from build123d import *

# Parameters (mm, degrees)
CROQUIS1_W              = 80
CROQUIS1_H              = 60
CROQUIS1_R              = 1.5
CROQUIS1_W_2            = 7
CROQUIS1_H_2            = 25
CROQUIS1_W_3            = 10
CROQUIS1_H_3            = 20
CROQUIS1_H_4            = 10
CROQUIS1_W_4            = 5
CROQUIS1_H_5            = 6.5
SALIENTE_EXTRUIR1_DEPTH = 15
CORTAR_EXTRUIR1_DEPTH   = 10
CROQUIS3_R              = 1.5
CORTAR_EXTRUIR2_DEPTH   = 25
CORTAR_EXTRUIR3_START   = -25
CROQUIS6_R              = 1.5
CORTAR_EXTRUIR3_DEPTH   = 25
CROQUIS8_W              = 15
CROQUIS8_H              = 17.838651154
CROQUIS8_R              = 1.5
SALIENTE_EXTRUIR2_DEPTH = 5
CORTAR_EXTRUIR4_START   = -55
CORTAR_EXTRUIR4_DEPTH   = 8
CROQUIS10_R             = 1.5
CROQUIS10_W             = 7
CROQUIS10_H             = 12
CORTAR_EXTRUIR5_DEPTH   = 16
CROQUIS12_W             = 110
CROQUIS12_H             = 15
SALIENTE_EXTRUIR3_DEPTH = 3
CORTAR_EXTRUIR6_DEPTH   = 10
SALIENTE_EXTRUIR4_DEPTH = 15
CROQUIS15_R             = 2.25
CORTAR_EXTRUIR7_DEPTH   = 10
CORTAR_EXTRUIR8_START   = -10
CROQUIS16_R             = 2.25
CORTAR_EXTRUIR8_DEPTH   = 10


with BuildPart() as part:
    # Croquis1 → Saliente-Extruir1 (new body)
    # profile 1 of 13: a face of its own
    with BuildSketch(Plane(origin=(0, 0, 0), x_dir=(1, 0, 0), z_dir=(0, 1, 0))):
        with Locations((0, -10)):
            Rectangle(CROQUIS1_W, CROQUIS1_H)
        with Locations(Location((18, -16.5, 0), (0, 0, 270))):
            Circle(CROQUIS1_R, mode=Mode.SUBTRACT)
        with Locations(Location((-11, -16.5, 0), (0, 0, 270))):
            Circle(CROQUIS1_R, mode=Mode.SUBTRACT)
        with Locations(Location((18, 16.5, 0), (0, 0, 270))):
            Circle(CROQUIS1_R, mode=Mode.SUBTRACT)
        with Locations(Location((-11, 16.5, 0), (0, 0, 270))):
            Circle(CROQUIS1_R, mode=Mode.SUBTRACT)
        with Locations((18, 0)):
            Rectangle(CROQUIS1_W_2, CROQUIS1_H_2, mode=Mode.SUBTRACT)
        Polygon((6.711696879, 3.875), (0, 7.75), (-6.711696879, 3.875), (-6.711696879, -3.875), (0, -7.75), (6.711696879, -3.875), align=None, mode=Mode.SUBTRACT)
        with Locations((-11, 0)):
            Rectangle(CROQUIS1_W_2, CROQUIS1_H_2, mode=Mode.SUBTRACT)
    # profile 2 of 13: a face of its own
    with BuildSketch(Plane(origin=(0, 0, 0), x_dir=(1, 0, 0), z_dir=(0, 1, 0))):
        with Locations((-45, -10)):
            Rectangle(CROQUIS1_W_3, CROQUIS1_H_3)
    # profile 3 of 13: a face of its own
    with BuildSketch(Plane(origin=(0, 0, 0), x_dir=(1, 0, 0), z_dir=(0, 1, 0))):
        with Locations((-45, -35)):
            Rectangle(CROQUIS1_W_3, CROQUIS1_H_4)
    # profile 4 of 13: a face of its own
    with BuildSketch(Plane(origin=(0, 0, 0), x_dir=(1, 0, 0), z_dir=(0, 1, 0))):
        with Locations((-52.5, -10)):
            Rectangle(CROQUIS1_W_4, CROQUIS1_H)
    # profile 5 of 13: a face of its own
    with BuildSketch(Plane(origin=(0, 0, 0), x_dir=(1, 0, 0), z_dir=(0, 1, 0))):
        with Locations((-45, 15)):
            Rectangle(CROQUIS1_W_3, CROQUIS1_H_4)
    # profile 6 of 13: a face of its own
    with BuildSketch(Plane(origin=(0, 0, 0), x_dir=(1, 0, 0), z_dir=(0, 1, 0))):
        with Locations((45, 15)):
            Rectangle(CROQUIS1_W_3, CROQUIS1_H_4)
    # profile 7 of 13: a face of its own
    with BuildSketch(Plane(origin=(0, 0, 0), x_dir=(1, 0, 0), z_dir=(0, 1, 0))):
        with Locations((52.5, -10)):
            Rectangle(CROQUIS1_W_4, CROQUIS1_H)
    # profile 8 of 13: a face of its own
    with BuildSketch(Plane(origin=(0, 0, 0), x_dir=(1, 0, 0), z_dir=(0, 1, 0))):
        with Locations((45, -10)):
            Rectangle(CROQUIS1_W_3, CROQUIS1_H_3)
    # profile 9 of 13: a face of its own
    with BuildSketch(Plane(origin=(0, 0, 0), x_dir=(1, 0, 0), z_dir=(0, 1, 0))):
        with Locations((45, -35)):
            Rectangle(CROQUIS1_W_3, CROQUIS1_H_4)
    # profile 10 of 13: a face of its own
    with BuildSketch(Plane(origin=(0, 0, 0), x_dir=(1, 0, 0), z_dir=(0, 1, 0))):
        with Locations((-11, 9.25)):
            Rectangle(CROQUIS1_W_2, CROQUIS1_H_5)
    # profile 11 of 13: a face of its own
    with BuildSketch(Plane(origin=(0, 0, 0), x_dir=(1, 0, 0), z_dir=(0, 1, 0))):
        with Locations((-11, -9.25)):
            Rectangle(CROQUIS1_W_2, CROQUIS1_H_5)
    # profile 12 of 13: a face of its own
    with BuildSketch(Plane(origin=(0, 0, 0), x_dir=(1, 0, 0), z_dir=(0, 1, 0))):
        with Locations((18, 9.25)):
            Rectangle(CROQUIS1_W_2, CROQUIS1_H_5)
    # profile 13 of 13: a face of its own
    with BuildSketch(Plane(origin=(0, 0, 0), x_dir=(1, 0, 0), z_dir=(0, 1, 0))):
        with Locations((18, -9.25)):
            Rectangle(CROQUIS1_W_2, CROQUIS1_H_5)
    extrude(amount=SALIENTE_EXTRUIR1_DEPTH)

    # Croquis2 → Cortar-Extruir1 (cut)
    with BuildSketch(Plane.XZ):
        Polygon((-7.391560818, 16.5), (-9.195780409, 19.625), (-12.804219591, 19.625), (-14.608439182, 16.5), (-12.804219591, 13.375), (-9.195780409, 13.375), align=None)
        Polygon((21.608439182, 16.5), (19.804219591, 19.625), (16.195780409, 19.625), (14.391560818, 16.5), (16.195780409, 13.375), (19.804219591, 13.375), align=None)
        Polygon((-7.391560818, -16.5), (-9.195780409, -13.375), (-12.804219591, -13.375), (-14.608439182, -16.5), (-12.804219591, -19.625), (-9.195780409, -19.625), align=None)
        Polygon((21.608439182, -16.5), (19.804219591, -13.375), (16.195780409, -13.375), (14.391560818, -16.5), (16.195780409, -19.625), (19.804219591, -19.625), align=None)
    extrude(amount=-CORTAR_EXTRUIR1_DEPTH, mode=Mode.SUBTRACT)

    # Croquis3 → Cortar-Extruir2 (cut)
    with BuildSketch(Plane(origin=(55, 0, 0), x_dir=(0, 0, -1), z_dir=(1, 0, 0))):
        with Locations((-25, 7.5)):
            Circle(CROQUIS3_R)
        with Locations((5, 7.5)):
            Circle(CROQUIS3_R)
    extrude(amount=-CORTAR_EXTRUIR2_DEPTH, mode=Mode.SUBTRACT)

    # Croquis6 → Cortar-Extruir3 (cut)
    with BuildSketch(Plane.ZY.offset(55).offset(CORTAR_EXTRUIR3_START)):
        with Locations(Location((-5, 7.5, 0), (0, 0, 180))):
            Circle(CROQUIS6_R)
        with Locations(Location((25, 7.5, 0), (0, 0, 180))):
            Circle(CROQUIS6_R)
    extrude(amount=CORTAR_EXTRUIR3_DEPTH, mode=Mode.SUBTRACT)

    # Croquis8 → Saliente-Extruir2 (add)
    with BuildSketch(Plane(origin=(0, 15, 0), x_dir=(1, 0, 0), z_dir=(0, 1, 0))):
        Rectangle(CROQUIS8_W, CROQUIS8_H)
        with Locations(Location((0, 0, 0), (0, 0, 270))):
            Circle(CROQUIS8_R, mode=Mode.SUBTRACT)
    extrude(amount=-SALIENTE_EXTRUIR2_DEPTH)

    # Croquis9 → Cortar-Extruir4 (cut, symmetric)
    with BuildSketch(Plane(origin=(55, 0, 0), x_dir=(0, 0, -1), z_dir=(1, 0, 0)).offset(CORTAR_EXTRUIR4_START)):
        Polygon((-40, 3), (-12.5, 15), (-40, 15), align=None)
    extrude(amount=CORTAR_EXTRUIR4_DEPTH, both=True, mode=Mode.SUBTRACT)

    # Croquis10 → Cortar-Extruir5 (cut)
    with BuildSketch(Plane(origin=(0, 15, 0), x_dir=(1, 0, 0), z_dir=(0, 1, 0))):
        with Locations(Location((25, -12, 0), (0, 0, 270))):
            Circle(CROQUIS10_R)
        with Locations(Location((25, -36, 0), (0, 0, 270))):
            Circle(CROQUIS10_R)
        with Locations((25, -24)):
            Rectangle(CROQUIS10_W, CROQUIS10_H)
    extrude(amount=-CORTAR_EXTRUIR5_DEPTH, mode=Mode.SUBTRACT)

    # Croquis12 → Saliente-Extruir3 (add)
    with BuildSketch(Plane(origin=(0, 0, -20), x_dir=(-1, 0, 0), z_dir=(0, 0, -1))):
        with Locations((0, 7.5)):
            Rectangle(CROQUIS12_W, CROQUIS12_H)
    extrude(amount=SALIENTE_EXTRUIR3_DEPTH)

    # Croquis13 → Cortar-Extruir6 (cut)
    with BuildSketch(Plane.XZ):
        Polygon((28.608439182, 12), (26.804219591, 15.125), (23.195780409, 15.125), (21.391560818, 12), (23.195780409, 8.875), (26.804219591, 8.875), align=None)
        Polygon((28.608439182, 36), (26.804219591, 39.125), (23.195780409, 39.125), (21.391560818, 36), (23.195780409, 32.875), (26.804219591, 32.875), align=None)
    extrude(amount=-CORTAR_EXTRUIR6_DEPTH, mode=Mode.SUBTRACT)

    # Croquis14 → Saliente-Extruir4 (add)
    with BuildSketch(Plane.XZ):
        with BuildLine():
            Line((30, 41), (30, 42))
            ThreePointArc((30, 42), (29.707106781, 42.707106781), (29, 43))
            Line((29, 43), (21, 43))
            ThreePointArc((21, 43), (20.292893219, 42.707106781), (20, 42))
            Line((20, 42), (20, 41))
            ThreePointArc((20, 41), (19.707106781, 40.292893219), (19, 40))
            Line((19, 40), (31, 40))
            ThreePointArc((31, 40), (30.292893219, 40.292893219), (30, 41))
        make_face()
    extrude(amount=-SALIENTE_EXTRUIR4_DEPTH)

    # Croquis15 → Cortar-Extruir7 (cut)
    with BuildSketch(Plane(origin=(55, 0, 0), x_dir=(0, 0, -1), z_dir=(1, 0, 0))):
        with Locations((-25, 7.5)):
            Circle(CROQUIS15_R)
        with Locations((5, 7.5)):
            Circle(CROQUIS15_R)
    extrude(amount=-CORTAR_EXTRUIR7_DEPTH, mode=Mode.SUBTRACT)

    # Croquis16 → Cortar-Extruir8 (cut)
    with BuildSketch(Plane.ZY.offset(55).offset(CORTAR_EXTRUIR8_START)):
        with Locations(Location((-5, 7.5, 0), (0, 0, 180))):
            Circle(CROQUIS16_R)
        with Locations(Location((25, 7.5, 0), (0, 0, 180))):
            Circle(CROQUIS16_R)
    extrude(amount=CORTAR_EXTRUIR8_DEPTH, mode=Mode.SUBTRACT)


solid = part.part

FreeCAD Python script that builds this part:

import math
import FreeCAD as App
import Part
import Sketcher

V = App.Vector
Q = App.Units.Quantity

doc = App.newDocument("Part")
body = doc.addObject("PartDesign::Body", "Body")

sketch1 = body.newObject("Sketcher::SketchObject", "Sketch")
sketch1.AttachmentSupport = (doc.getObject("XZ_Plane"), [""])
sketch1.MapMode = "FlatFace"
sketch1.addGeometry(Part.LineSegment(V(55, 40, 0), V(55, -20, 0)), False)
sketch1.addGeometry(Part.LineSegment(V(55, -20, 0), V(-55, -20, 0)), False)
sketch1.addGeometry(Part.LineSegment(V(-55, -20, 0), V(-55, 40, 0)), False)
sketch1.addGeometry(Part.LineSegment(V(-55, 40, 0), V(55, 40, 0)), False)
sketch1.addGeometry(Part.LineSegment(V(-40, 20, 0), V(-40, 30, 0)), False)
sketch1.addGeometry(Part.LineSegment(V(-40, 30, 0), V(-50, 30, 0)), False)
sketch1.addGeometry(Part.LineSegment(V(-50, 30, 0), V(-50, 20, 0)), False)
sketch1.addGeometry(Part.LineSegment(V(-50, 20, 0), V(-40, 20, 0)), False)
sketch1.addGeometry(Part.LineSegment(V(-40, -10, 0), V(-40, 0, 0)), False)
sketch1.addGeometry(Part.LineSegment(V(-40, 0, 0), V(-50, 0, 0)), False)
sketch1.addGeometry(Part.LineSegment(V(-50, 0, 0), V(-50, -10, 0)), False)
sketch1.addGeometry(Part.LineSegment(V(-50, -10, 0), V(-40, -10, 0)), False)
sketch1.addGeometry(Part.LineSegment(V(40, 30, 0), V(40, 20, 0)), False)
sketch1.addGeometry(Part.LineSegment(V(40, 20, 0), V(50, 20, 0)), False)
sketch1.addGeometry(Part.LineSegment(V(50, 20, 0), V(50, 30, 0)), False)
sketch1.addGeometry(Part.LineSegment(V(50, 30, 0), V(40, 30, 0)), False)
sketch1.addGeometry(Part.LineSegment(V(40, 0, 0), V(40, -10, 0)), False)
sketch1.addGeometry(Part.LineSegment(V(40, -10, 0), V(50, -10, 0)), False)
sketch1.addGeometry(Part.LineSegment(V(50, -10, 0), V(50, 0, 0)), False)
sketch1.addGeometry(Part.LineSegment(V(50, 0, 0), V(40, 0, 0)), False)
sketch1.addGeometry(Part.Circle(V(-11, 16.5, 0), V(0, 0, 1), 1.5), False)
sketch1.addGeometry(Part.Circle(V(18, 16.5, 0), V(0, 0, 1), 1.5), False)
sketch1.addGeometry(Part.LineSegment(V(-7.5, -6, 0), V(-7.5, 6, 0)), False)
sketch1.addGeometry(Part.LineSegment(V(-7.5, 6, 0), V(-14.5, 6, 0)), False)
sketch1.addGeometry(Part.LineSegment(V(-14.5, 6, 0), V(-14.5, -6, 0)), False)
sketch1.addGeometry(Part.LineSegment(V(-14.5, -6, 0), V(-7.5, -6, 0)), False)
sketch1.addGeometry(Part.LineSegment(V(0, -7.8, 0), V(6.7, -3.9, 0)), False)
sketch1.addGeometry(Part.LineSegment(V(6.7, -3.9, 0), V(6.7, 3.9, 0)), False)
sketch1.addGeometry(Part.LineSegment(V(6.7, 3.9, 0), V(0, 7.8, 0)), False)
sketch1.addGeometry(Part.LineSegment(V(0, 7.8, 0), V(-6.7, 3.9, 0)), False)
sketch1.addGeometry(Part.LineSegment(V(-6.7, 3.9, 0), V(-6.7, -3.9, 0)), False)
sketch1.addGeometry(Part.LineSegment(V(-6.7, -3.9, 0), V(0, -7.8, 0)), False)
sketch1.addGeometry(Part.Circle(V(-11, -16.5, 0), V(0, 0, 1), 1.5), False)
sketch1.addGeometry(Part.LineSegment(V(14.5, 6, 0), V(14.5, -6, 0)), False)
sketch1.addGeometry(Part.LineSegment(V(14.5, -6, 0), V(21.5, -6, 0)), False)
sketch1.addGeometry(Part.LineSegment(V(21.5, -6, 0), V(21.5, 6, 0)), False)
sketch1.addGeometry(Part.LineSegment(V(21.5, 6, 0), V(14.5, 6, 0)), False)
sketch1.addGeometry(Part.Circle(V(18, -16.5, 0), V(0, 0, 1), 1.5), False)
sketch1.addConstraint(Sketcher.Constraint("Coincident", 0, 2, 1, 1))
sketch1.addConstraint(Sketcher.Constraint("Coincident", 1, 2, 2, 1))
sketch1.addConstraint(Sketcher.Constraint("Coincident", 2, 2, 3, 1))
sketch1.addConstraint(Sketcher.Constraint("Coincident", 3, 2, 0, 1))
sketch1.addConstraint(Sketcher.Constraint("Coincident", 4, 2, 5, 1))
sketch1.addConstraint(Sketcher.Constraint("Coincident", 5, 2, 6, 1))
sketch1.addConstraint(Sketcher.Constraint("Coincident", 6, 2, 7, 1))
sketch1.addConstraint(Sketcher.Constraint("Coincident", 7, 2, 4, 1))
sketch1.addConstraint(Sketcher.Constraint("Coincident", 8, 2, 9, 1))
sketch1.addConstraint(Sketcher.Constraint("Coincident", 9, 2, 10, 1))
sketch1.addConstraint(Sketcher.Constraint("Coincident", 10, 2, 11, 1))
sketch1.addConstraint(Sketcher.Constraint("Coincident", 11, 2, 8, 1))
sketch1.addConstraint(Sketcher.Constraint("Coincident", 12, 2, 13, 1))
sketch1.addConstraint(Sketcher.Constraint("Coincident", 13, 2, 14, 1))
sketch1.addConstraint(Sketcher.Constraint("Coincident", 14, 2, 15, 1))
sketch1.addConstraint(Sketcher.Constraint("Coincident", 15, 2, 12, 1))
sketch1.addConstraint(Sketcher.Constraint("Coincident", 16, 2, 17, 1))
sketch1.addConstraint(Sketcher.Constraint("Coincident", 17, 2, 18, 1))
sketch1.addConstraint(Sketcher.Constraint("Coincident", 18, 2, 19, 1))
sketch1.addConstraint(Sketcher.Constraint("Coincident", 19, 2, 16, 1))
sketch1.addConstraint(Sketcher.Constraint("Coincident", 22, 2, 23, 1))
sketch1.addConstraint(Sketcher.Constraint("Coincident", 23, 2, 24, 1))
sketch1.addConstraint(Sketcher.Constraint("Coincident", 24, 2, 25, 1))
sketch1.addConstraint(Sketcher.Constraint("Coincident", 25, 2, 22, 1))
sketch1.addConstraint(Sketcher.Constraint("Coincident", 26, 2, 27, 1))
sketch1.addConstraint(Sketcher.Constraint("Coincident", 27, 2, 28, 1))
sketch1.addConstraint(Sketcher.Constraint("Coincident", 28, 2, 29, 1))
sketch1.addConstraint(Sketcher.Constraint("Coincident", 29, 2, 30, 1))
sketch1.addConstraint(Sketcher.Constraint("Coincident", 30, 2, 31, 1))
sketch1.addConstraint(Sketcher.Constraint("Coincident", 31, 2, 26, 1))
sketch1.addConstraint(Sketcher.Constraint("Coincident", 33, 2, 34, 1))
sketch1.addConstraint(Sketcher.Constraint("Coincident", 34, 2, 35, 1))
sketch1.addConstraint(Sketcher.Constraint("Coincident", 35, 2, 36, 1))
sketch1.addConstraint(Sketcher.Constraint("Coincident", 36, 2, 33, 1))
sketch1.addConstraint(Sketcher.Constraint("Vertical", 0))
sketch1.addConstraint(Sketcher.Constraint("Horizontal", 1))
sketch1.addConstraint(Sketcher.Constraint("Vertical", 2))
sketch1.addConstraint(Sketcher.Constraint("Horizontal", 3))
sketch1.addConstraint(Sketcher.Constraint("Vertical", 4))
sketch1.addConstraint(Sketcher.Constraint("Horizontal", 5))
sketch1.addConstraint(Sketcher.Constraint("Vertical", 6))
sketch1.addConstraint(Sketcher.Constraint("Horizontal", 7))
sketch1.addConstraint(Sketcher.Constraint("Vertical", 8))
sketch1.addConstraint(Sketcher.Constraint("Horizontal", 9))
sketch1.addConstraint(Sketcher.Constraint("Vertical", 10))
sketch1.addConstraint(Sketcher.Constraint("Horizontal", 11))
sketch1.addConstraint(Sketcher.Constraint("Vertical", 12))
sketch1.addConstraint(Sketcher.Constraint("Horizontal", 13))
sketch1.addConstraint(Sketcher.Constraint("Vertical", 14))
sketch1.addConstraint(Sketcher.Constraint("Horizontal", 15))
sketch1.addConstraint(Sketcher.Constraint("Vertical", 16))
sketch1.addConstraint(Sketcher.Constraint("Horizontal", 17))
sketch1.addConstraint(Sketcher.Constraint("Vertical", 18))
sketch1.addConstraint(Sketcher.Constraint("Horizontal", 19))
sketch1.addConstraint(Sketcher.Constraint("Vertical", 22))
sketch1.addConstraint(Sketcher.Constraint("Horizontal", 23))
sketch1.addConstraint(Sketcher.Constraint("Vertical", 24))
sketch1.addConstraint(Sketcher.Constraint("Horizontal", 25))
sketch1.addConstraint(Sketcher.Constraint("Vertical", 27))
sketch1.addConstraint(Sketcher.Constraint("Vertical", 30))
sketch1.addConstraint(Sketcher.Constraint("Vertical", 33))
sketch1.addConstraint(Sketcher.Constraint("Horizontal", 34))
sketch1.addConstraint(Sketcher.Constraint("Vertical", 35))
sketch1.addConstraint(Sketcher.Constraint("Horizontal", 36))
sketch1.addConstraint(Sketcher.Constraint("Equal", 20, 21))
sketch1.addConstraint(Sketcher.Constraint("Equal", 21, 32))
sketch1.addConstraint(Sketcher.Constraint("Equal", 32, 37))
sketch1.addConstraint(Sketcher.Constraint("Symmetric", 9, 2, 18, 2, -1, 1))
sketch1.addConstraint(Sketcher.Constraint("Symmetric", 26, 2, 29, 2, -1, 1))
sketch1.addConstraint(Sketcher.Constraint("Symmetric", 28, 2, 31, 2, -1, 1))
sketch1.addConstraint(Sketcher.Constraint("Symmetric", 23, 2, 33, 2, -1, 1))
sketch1.addConstraint(Sketcher.Constraint("Symmetric", 7, 2, 12, 2, -2))
sketch1.addConstraint(Sketcher.Constraint("Symmetric", 5, 2, 14, 2, -2))
sketch1.addConstraint(Sketcher.Constraint("Symmetric", 11, 2, 16, 2, -2))
sketch1.addConstraint(Sketcher.Constraint("Symmetric", 20, 3, 32, 3, -1))
sketch1.addConstraint(Sketcher.Constraint("Symmetric", 21, 3, 37, 3, -1))
sketch1.addConstraint(Sketcher.Constraint("PointOnObject", 8, 2, -1))
sketch1.addConstraint(Sketcher.Constraint("PointOnObject", 28, 2, -2))
sketch1.addConstraint(Sketcher.Constraint("Parallel", 28, 31))
sketch1.addConstraint(Sketcher.Constraint("Horizontal", 20, 3, 21, 3))
sketch1.addConstraint(Sketcher.Constraint("Horizontal", 27, 2, 29, 2))
sketch1.addConstraint(Sketcher.Constraint("Horizontal", 25, 2, 33, 2))
sketch1.addConstraint(Sketcher.Constraint("Horizontal", 23, 2, 35, 2))
sketch1.addConstraint(Sketcher.Constraint("Vertical", 7, 2, 8, 2))
sketch1.addConstraint(Sketcher.Constraint("Vertical", 6, 2, 9, 2))
sketch1.addConstraint(Sketcher.Constraint("Equal", 25, 34))
sketch1.addConstraint(Sketcher.Constraint("Equal", 19, 4))
sketch1.addConstraint(Sketcher.Constraint("Equal", 6, 8))
sketch1.addConstraint(Sketcher.Constraint("Diameter", 20, 3.0))
sketch1.addConstraint(Sketcher.Constraint("DistanceX", 1, 2, 1, 1, 110.0))
sketch1.addConstraint(Sketcher.Constraint("DistanceX", 5, 2, 5, 1, 10.0))
sketch1.addConstraint(Sketcher.Constraint("DistanceX", 23, 2, 23, 1, 7.0))
sketch1.addConstraint(Sketcher.Constraint("DistanceY", 0, 2, 0, 1, 60.0))
sketch1.addConstraint(Sketcher.Constraint("DistanceY", 22, 1, 22, 2, 12.0))
sketch1.addConstraint(Sketcher.Constraint("Angle", 26, Q("30 deg")))
sketch1.addConstraint(Sketcher.Constraint("DistanceX", 20, 3, -1, 1, 11.0))
sketch1.addConstraint(Sketcher.Constraint("DistanceX", -1, 1, 21, 3, 18.0))
sketch1.addConstraint(Sketcher.Constraint("DistanceX", -1, 1, 0, 2, 55.0))
sketch1.addConstraint(Sketcher.Constraint("DistanceY", 0, 2, -1, 1, 20.0))
sketch1.addConstraint(Sketcher.Constraint("DistanceX", 4, 2, -1, 1, 40.0))
sketch1.addConstraint(Sketcher.Constraint("DistanceY", -1, 1, 4, 2, 30.0))
sketch1.addConstraint(Sketcher.Constraint("DistanceY", 32, 3, 20, 3, 33.0))
sketch1.addConstraint(Sketcher.Constraint("DistanceY", 27, 1, 27, 2, 7.75))
sketch1.addConstraint(Sketcher.Constraint("DistanceX", 22, 2, -1, 1, 7.5))
sketch1.addConstraint(Sketcher.Constraint("Distance", 26, 7.75))
pad1 = body.newObject("PartDesign::Pad", "Pad")
pad1.Profile = sketch1
pad1.Length = 15
pad1.Reversed = True

sketch2 = body.newObject("Sketcher::SketchObject", "Sketch001")
sketch2.AttachmentSupport = (doc.getObject("XZ_Plane"), [""])
sketch2.MapMode = "FlatFace"
sketch2.addGeometry(Part.LineSegment(V(-7.4, 16.5, 0), V(-9.2, 19.6, 0)), False)
sketch2.addGeometry(Part.LineSegment(V(-9.2, 19.6, 0), V(-12.8, 19.6, 0)), False)
sketch2.addGeometry(Part.LineSegment(V(-12.8, 19.6, 0), V(-14.6, 16.5, 0)), False)
sketch2.addGeometry(Part.LineSegment(V(-14.6, 16.5, 0), V(-12.8, 13.4, 0)), False)
sketch2.addGeometry(Part.LineSegment(V(-12.8, 13.4, 0), V(-9.2, 13.4, 0)), False)
sketch2.addGeometry(Part.LineSegment(V(-9.2, 13.4, 0), V(-7.4, 16.5, 0)), False)
sketch2.addGeometry(Part.LineSegment(V(21.6, 16.5, 0), V(19.8, 19.6, 0)), False)
sketch2.addGeometry(Part.LineSegment(V(19.8, 19.6, 0), V(16.2, 19.6, 0)), False)
sketch2.addGeometry(Part.LineSegment(V(16.2, 19.6, 0), V(14.4, 16.5, 0)), False)
sketch2.addGeometry(Part.LineSegment(V(14.4, 16.5, 0), V(16.2, 13.4, 0)), False)
sketch2.addGeometry(Part.LineSegment(V(16.2, 13.4, 0), V(19.8, 13.4, 0)), False)
sketch2.addGeometry(Part.LineSegment(V(19.8, 13.4, 0), V(21.6, 16.5, 0)), False)
sketch2.addGeometry(Part.LineSegment(V(-7.4, -16.5, 0), V(-9.2, -13.4, 0)), False)
sketch2.addGeometry(Part.LineSegment(V(-9.2, -13.4, 0), V(-12.8, -13.4, 0)), False)
sketch2.addGeometry(Part.LineSegment(V(-12.8, -13.4, 0), V(-14.6, -16.5, 0)), False)
sketch2.addGeometry(Part.LineSegment(V(-14.6, -16.5, 0), V(-12.8, -19.6, 0)), False)
sketch2.addGeometry(Part.LineSegment(V(-12.8, -19.6, 0), V(-9.2, -19.6, 0)), False)
sketch2.addGeometry(Part.LineSegment(V(-9.2, -19.6, 0), V(-7.4, -16.5, 0)), False)
sketch2.addGeometry(Part.LineSegment(V(21.6, -16.5, 0), V(19.8, -13.4, 0)), False)
sketch2.addGeometry(Part.LineSegment(V(19.8, -13.4, 0), V(16.2, -13.4, 0)), False)
sketch2.addGeometry(Part.LineSegment(V(16.2, -13.4, 0), V(14.4, -16.5, 0)), False)
sketch2.addGeometry(Part.LineSegment(V(14.4, -16.5, 0), V(16.2, -19.6, 0)), False)
sketch2.addGeometry(Part.LineSegment(V(16.2, -19.6, 0), V(19.8, -19.6, 0)), False)
sketch2.addGeometry(Part.LineSegment(V(19.8, -19.6, 0), V(21.6, -16.5, 0)), False)
sketch2.addConstraint(Sketcher.Constraint("Coincident", 0, 2, 1, 1))
sketch2.addConstraint(Sketcher.Constraint("Coincident", 1, 2, 2, 1))
sketch2.addConstraint(Sketcher.Constraint("Coincident", 2, 2, 3, 1))
sketch2.addConstraint(Sketcher.Constraint("Coincident", 3, 2, 4, 1))
sketch2.addConstraint(Sketcher.Constraint("Coincident", 4, 2, 5, 1))
sketch2.addConstraint(Sketcher.Constraint("Coincident", 5, 2, 0, 1))
sketch2.addConstraint(Sketcher.Constraint("Coincident", 6, 2, 7, 1))
sketch2.addConstraint(Sketcher.Constraint("Coincident", 7, 2, 8, 1))
sketch2.addConstraint(Sketcher.Constraint("Coincident", 8, 2, 9, 1))
sketch2.addConstraint(Sketcher.Constraint("Coincident", 9, 2, 10, 1))
sketch2.addConstraint(Sketcher.Constraint("Coincident", 10, 2, 11, 1))
sketch2.addConstraint(Sketcher.Constraint("Coincident", 11, 2, 6, 1))
sketch2.addConstraint(Sketcher.Constraint("Coincident", 12, 2, 13, 1))
sketch2.addConstraint(Sketcher.Constraint("Coincident", 13, 2, 14, 1))
sketch2.addConstraint(Sketcher.Constraint("Coincident", 14, 2, 15, 1))
sketch2.addConstraint(Sketcher.Constraint("Coincident", 15, 2, 16, 1))
sketch2.addConstraint(Sketcher.Constraint("Coincident", 16, 2, 17, 1))
sketch2.addConstraint(Sketcher.Constraint("Coincident", 17, 2, 12, 1))
sketch2.addConstraint(Sketcher.Constraint("Coincident", 18, 2, 19, 1))
sketch2.addConstraint(Sketcher.Constraint("Coincident", 19, 2, 20, 1))
sketch2.addConstraint(Sketcher.Constraint("Coincident", 20, 2, 21, 1))
sketch2.addConstraint(Sketcher.Constraint("Coincident", 21, 2, 22, 1))
sketch2.addConstraint(Sketcher.Constraint("Coincident", 22, 2, 23, 1))
sketch2.addConstraint(Sketcher.Constraint("Coincident", 23, 2, 18, 1))
sketch2.addConstraint(Sketcher.Constraint("Horizontal", 1))
sketch2.addConstraint(Sketcher.Constraint("Horizontal", 4))
sketch2.addConstraint(Sketcher.Constraint("Horizontal", 7))
sketch2.addConstraint(Sketcher.Constraint("Horizontal", 10))
sketch2.addConstraint(Sketcher.Constraint("Horizontal", 13))
sketch2.addConstraint(Sketcher.Constraint("Horizontal", 16))
sketch2.addConstraint(Sketcher.Constraint("Horizontal", 19))
sketch2.addConstraint(Sketcher.Constraint("Horizontal", 22))
sketch2.addConstraint(Sketcher.Constraint("Symmetric", 4, 2, 12, 2, -1))
sketch2.addConstraint(Sketcher.Constraint("Symmetric", 2, 2, 14, 2, -1))
sketch2.addConstraint(Sketcher.Constraint("Symmetric", 1, 2, 15, 2, -1))
sketch2.addConstraint(Sketcher.Constraint("Symmetric", 5, 2, 17, 2, -1))
sketch2.addConstraint(Sketcher.Constraint("Symmetric", 10, 2, 18, 2, -1))
sketch2.addConstraint(Sketcher.Constraint("Symmetric", 8, 2, 20, 2, -1))
sketch2.addConstraint(Sketcher.Constraint("Symmetric", 7, 2, 21, 2, -1))
sketch2.addConstraint(Sketcher.Constraint("Symmetric", 11, 2, 23, 2, -1))
sketch2.addConstraint(Sketcher.Constraint("Parallel", 0, 3))
sketch2.addConstraint(Sketcher.Constraint("Parallel", 2, 5))
sketch2.addConstraint(Sketcher.Constraint("Parallel", 3, 6))
sketch2.addConstraint(Sketcher.Constraint("Parallel", 5, 8))
sketch2.addConstraint(Sketcher.Constraint("Parallel", 6, 9))
sketch2.addConstraint(Sketcher.Constraint("Parallel", 8, 11))
sketch2.addConstraint(Sketcher.Constraint("Parallel", 9, 12))
sketch2.addConstraint(Sketcher.Constraint("Parallel", 11, 14))
sketch2.addConstraint(Sketcher.Constraint("Parallel", 14, 17))
sketch2.addConstraint(Sketcher.Constraint("Parallel", 17, 20))
sketch2.addConstraint(Sketcher.Constraint("Parallel", 20, 23))
sketch2.addConstraint(Sketcher.Constraint("Horizontal", 2, 2, 5, 2))
sketch2.addConstraint(Sketcher.Constraint("Horizontal", 1, 2, 6, 2))
sketch2.addConstraint(Sketcher.Constraint("Horizontal", 5, 2, 8, 2))
sketch2.addConstraint(Sketcher.Constraint("Horizontal", 4, 2, 9, 2))
sketch2.addConstraint(Sketcher.Constraint("Horizontal", 8, 2, 11, 2))
sketch2.addConstraint(Sketcher.Constraint("Vertical", 1, 2, 3, 2))
sketch2.addConstraint(Sketcher.Constraint("Equal", 4, 7))
sketch2.addConstraint(Sketcher.Constraint("Angle", 0, Q("120 deg")))
sketch2.addConstraint(Sketcher.Constraint("DistanceX", 0, 2, 6, 2, 29.0))
sketch2.addConstraint(Sketcher.Constraint("DistanceY", 12, 2, 0, 2, 33.0))
sketch2.addConstraint(Sketcher.Constraint("DistanceY", 3, 2, 1, 2, 6.25))
sketch2.addConstraint(Sketcher.Constraint("DistanceX", 1, 2, 1, 1, 3.608439))
sketch2.addConstraint(Sketcher.Constraint("DistanceX", 0, 2, -1, 1, 9.19578))
pocket1 = body.newObject("PartDesign::Pocket", "Pocket")
pocket1.Profile = sketch2
pocket1.Length = 10

sketch3 = body.newObject("Sketcher::SketchObject", "Sketch002")
sketch3.AttachmentSupport = (doc.getObject("YZ_Plane"), [""])
sketch3.MapMode = "FlatFace"
sketch3.AttachmentOffset = App.Placement(V(0, 0, 55), App.Rotation())
sketch3.addGeometry(Part.Circle(V(7.5, 25, 0), V(0, 0, 1), 1.5), False)
sketch3.addGeometry(Part.Circle(V(7.5, -5, 0), V(0, 0, 1), 1.5), False)
sketch3.addConstraint(Sketcher.Constraint("Equal", 0, 1))
sketch3.addConstraint(Sketcher.Constraint("Vertical", 0, 3, 1, 3))
sketch3.addConstraint(Sketcher.Constraint("Diameter", 0, 3.0))
sketch3.addConstraint(Sketcher.Constraint("DistanceY", -1, 1, 0, 3, 25.0))
sketch3.addConstraint(Sketcher.Constraint("DistanceY", 1, 3, -1, 1, 5.0))
sketch3.addConstraint(Sketcher.Constraint("DistanceX", -1, 1, 0, 3, 7.5))
pocket2 = body.newObject("PartDesign::Pocket", "Pocket001")
pocket2.Profile = sketch3
pocket2.Length = 25

sketch4 = body.newObject("Sketcher::SketchObject", "Sketch003")
sketch4.AttachmentSupport = (doc.getObject("YZ_Plane"), [""])
sketch4.MapMode = "FlatFace"
sketch4.AttachmentOffset = App.Placement(V(0, 0, -30), App.Rotation())
sketch4.addGeometry(Part.Circle(V(7.5, -5, 0), V(0, 0, 1), 1.5), False)
sketch4.addGeometry(Part.Circle(V(7.5, 25, 0), V(0, 0, 1), 1.5), False)
sketch4.addConstraint(Sketcher.Constraint("Equal", 0, 1))
sketch4.addConstraint(Sketcher.Constraint("Vertical", 0, 3, 1, 3))
sketch4.addConstraint(Sketcher.Constraint("Diameter", 0, 3.0))
sketch4.addConstraint(Sketcher.Constraint("DistanceY", 0, 3, -1, 1, 5.0))
sketch4.addConstraint(Sketcher.Constraint("DistanceY", -1, 1, 1, 3, 25.0))
sketch4.addConstraint(Sketcher.Constraint("DistanceX", -1, 1, 0, 3, 7.5))
pocket3 = body.newObject("PartDesign::Pocket", "Pocket002")
pocket3.Profile = sketch4
pocket3.Length = 25

sketch5 = body.newObject("Sketcher::SketchObject", "Sketch004")
sketch5.AttachmentSupport = (doc.getObject("XZ_Plane"), [""])
sketch5.MapMode = "FlatFace"
sketch5.AttachmentOffset = App.Placement(V(0, 0, -15), App.Rotation())
sketch5.addGeometry(Part.LineSegment(V(-7.5, -8.9, 0), V(-7.5, 8.9, 0)), False)
sketch5.addGeometry(Part.LineSegment(V(-7.5, 8.9, 0), V(7.5, 8.9, 0)), False)
sketch5.addGeometry(Part.LineSegment(V(7.5, 8.9, 0), V(7.5, -8.9, 0)), False)
sketch5.addGeometry(Part.LineSegment(V(7.5, -8.9, 0), V(-7.5, -8.9, 0)), False)
sketch5.addGeometry(Part.Circle(V(0, 0, 0), V(0, 0, 1), 1.5), False)
sketch5.addConstraint(Sketcher.Constraint("Coincident", 0, 2, 1, 1))
sketch5.addConstraint(Sketcher.Constraint("Coincident", 1, 2, 2, 1))
sketch5.addConstraint(Sketcher.Constraint("Coincident", 2, 2, 3, 1))
sketch5.addConstraint(Sketcher.Constraint("Coincident", 3, 2, 0, 1))
sketch5.addConstraint(Sketcher.Constraint("Vertical", 0))
sketch5.addConstraint(Sketcher.Constraint("Horizontal", 1))
sketch5.addConstraint(Sketcher.Constraint("Vertical", 2))
sketch5.addConstraint(Sketcher.Constraint("Horizontal", 3))
sketch5.addConstraint(Sketcher.Constraint("Coincident", 4, 3, -1, 1))
sketch5.addConstraint(Sketcher.Constraint("Symmetric", 0, 2, 2, 2, -1, 1))
sketch5.addConstraint(Sketcher.Constraint("Diameter", 4, 3.0))
sketch5.addConstraint(Sketcher.Constraint("DistanceX", 1, 1, 1, 2, 15.0))
sketch5.addConstraint(Sketcher.Constraint("DistanceY", 0, 1, 0, 2, 17.838651))
pad2 = body.newObject("PartDesign::Pad", "Pad001")
pad2.Profile = sketch5
pad2.Length = 5

sketch6 = body.newObject("Sketcher::SketchObject", "Sketch005")
sketch6.AttachmentSupport = (doc.getObject("YZ_Plane"), [""])
sketch6.MapMode = "FlatFace"
sketch6.addGeometry(Part.LineSegment(V(3, 40, 0), V(15, 12, 0)), False)
sketch6.addGeometry(Part.LineSegment(V(15, 12, 0), V(15, 40, 0)), False)
sketch6.addGeometry(Part.LineSegment(V(15, 40, 0), V(3, 40, 0)), False)
sketch6.addConstraint(Sketcher.Constraint("Coincident", 0, 2, 1, 1))
sketch6.addConstraint(Sketcher.Constraint("Coincident", 1, 2, 2, 1))
sketch6.addConstraint(Sketcher.Constraint("Coincident", 2, 2, 0, 1))
sketch6.addConstraint(Sketcher.Constraint("Vertical", 1))
sketch6.addConstraint(Sketcher.Constraint("Horizontal", 2))
sketch6.addConstraint(Sketcher.Constraint("DistanceX", 2, 2, 2, 1, 12.0))
sketch6.addConstraint(Sketcher.Constraint("DistanceY", 1, 1, 1, 2, 27.5))
sketch6.addConstraint(Sketcher.Constraint("DistanceX", -1, 1, 0, 2, 15.0))
sketch6.addConstraint(Sketcher.Constraint("DistanceY", -1, 1, 1, 2, 40.0))
pocket4 = body.newObject("PartDesign::Pocket", "Pocket003")
pocket4.Profile = sketch6
pocket4.Length = 16
pocket4.Midplane = True

sketch7 = body.newObject("Sketcher::SketchObject", "Sketch006")
sketch7.AttachmentSupport = (doc.getObject("XZ_Plane"), [""])
sketch7.MapMode = "FlatFace"
sketch7.AttachmentOffset = App.Placement(V(0, 0, -15), App.Rotation())
sketch7.addGeometry(Part.Circle(V(25, 12, 0), V(0, 0, 1), 1.5), False)
sketch7.addGeometry(Part.Circle(V(25, 36, 0), V(0, 0, 1), 1.5), False)
sketch7.addGeometry(Part.LineSegment(V(21.5, 18, 0), V(21.5, 30, 0)), False)
sketch7.addGeometry(Part.LineSegment(V(21.5, 30, 0), V(28.5, 30, 0)), False)
sketch7.addGeometry(Part.LineSegment(V(28.5, 30, 0), V(28.5, 18, 0)), False)
sketch7.addGeometry(Part.LineSegment(V(28.5, 18, 0), V(21.5, 18, 0)), False)
sketch7.addConstraint(Sketcher.Constraint("Coincident", 2, 2, 3, 1))
sketch7.addConstraint(Sketcher.Constraint("Coincident", 3, 2, 4, 1))
sketch7.addConstraint(Sketcher.Constraint("Coincident", 4, 2, 5, 1))
sketch7.addConstraint(Sketcher.Constraint("Coincident", 5, 2, 2, 1))
sketch7.addConstraint(Sketcher.Constraint("Vertical", 2))
sketch7.addConstraint(Sketcher.Constraint("Horizontal", 3))
sketch7.addConstraint(Sketcher.Constraint("Vertical", 4))
sketch7.addConstraint(Sketcher.Constraint("Horizontal", 5))
sketch7.addConstraint(Sketcher.Constraint("Equal", 0, 1))
sketch7.addConstraint(Sketcher.Constraint("Vertical", 0, 3, 1, 3))
sketch7.addConstraint(Sketcher.Constraint("Diameter", 0, 3.0))
sketch7.addConstraint(Sketcher.Constraint("DistanceX", 3, 1, 3, 2, 7.0))
sketch7.addConstraint(Sketcher.Constraint("DistanceY", 2, 1, 2, 2, 12.0))
sketch7.addConstraint(Sketcher.Constraint("DistanceX", -1, 1, 0, 3, 25.0))
sketch7.addConstraint(Sketcher.Constraint("DistanceY", -1, 1, 0, 3, 12.0))
sketch7.addConstraint(Sketcher.Constraint("DistanceY", -1, 1, 1, 3, 36.0))
sketch7.addConstraint(Sketcher.Constraint("DistanceY", -1, 1, 2, 2, 30.0))
sketch7.addConstraint(Sketcher.Constraint("DistanceX", -1, 1, 2, 2, 21.5))
pocket5 = body.newObject("PartDesign::Pocket", "Pocket004")
pocket5.Profile = sketch7
pocket5.Length = 16
pocket5.Reversed = True

sketch8 = body.newObject("Sketcher::SketchObject", "Sketch007")
sketch8.AttachmentSupport = (doc.getObject("XY_Plane"), [""])
sketch8.MapMode = "FlatFace"
sketch8.AttachmentOffset = App.Placement(V(0, 0, -20), App.Rotation())
sketch8.addGeometry(Part.LineSegment(V(55, 15, 0), V(55, 0, 0)), False)
sketch8.addGeometry(Part.LineSegment(V(55, 0, 0), V(-55, 0, 0)), False)
sketch8.addGeometry(Part.LineSegment(V(-55, 0, 0), V(-55, 15, 0)), False)
sketch8.addGeometry(Part.LineSegment(V(-55, 15, 0), V(55, 15, 0)), False)
sketch8.addConstraint(Sketcher.Constraint("Coincident", 0, 2, 1, 1))
sketch8.addConstraint(Sketcher.Constraint("Coincident", 1, 2, 2, 1))
sketch8.addConstraint(Sketcher.Constraint("Coincident", 2, 2, 3, 1))
sketch8.addConstraint(Sketcher.Constraint("Coincident", 3, 2, 0, 1))
sketch8.addConstraint(Sketcher.Constraint("Vertical", 0))
sketch8.addConstraint(Sketcher.Constraint("Horizontal", 1))
sketch8.addConstraint(Sketcher.Constraint("Vertical", 2))
sketch8.addConstraint(Sketcher.Constraint("Horizontal", 3))
sketch8.addConstraint(Sketcher.Constraint("Symmetric", 0, 2, 1, 2, -1, 1))
sketch8.addConstraint(Sketcher.Constraint("DistanceX", 1, 2, 1, 1, 110.0))
sketch8.addConstraint(Sketcher.Constraint("DistanceY", 0, 2, 0, 1, 15.0))
pad3 = body.newObject("PartDesign::Pad", "Pad002")
pad3.Profile = sketch8
pad3.Length = 3
pad3.Reversed = True

sketch9 = body.newObject("Sketcher::SketchObject", "Sketch008")
sketch9.AttachmentSupport = (doc.getObject("XZ_Plane"), [""])
sketch9.MapMode = "FlatFace"
sketch9.addGeometry(Part.LineSegment(V(28.6, 12, 0), V(26.8, 15.1, 0)), False)
sketch9.addGeometry(Part.LineSegment(V(26.8, 15.1, 0), V(23.2, 15.1, 0)), False)
sketch9.addGeometry(Part.LineSegment(V(23.2, 15.1, 0), V(21.4, 12, 0)), False)
sketch9.addGeometry(Part.LineSegment(V(21.4, 12, 0), V(23.2, 8.9, 0)), False)
sketch9.addGeometry(Part.LineSegment(V(23.2, 8.9, 0), V(26.8, 8.9, 0)), False)
sketch9.addGeometry(Part.LineSegment(V(26.8, 8.9, 0), V(28.6, 12, 0)), False)
sketch9.addGeometry(Part.LineSegment(V(28.6, 36, 0), V(26.8, 39.1, 0)), False)
sketch9.addGeometry(Part.LineSegment(V(26.8, 39.1, 0), V(23.2, 39.1, 0)), False)
sketch9.addGeometry(Part.LineSegment(V(23.2, 39.1, 0), V(21.4, 36, 0)), False)
sketch9.addGeometry(Part.LineSegment(V(21.4, 36, 0), V(23.2, 32.9, 0)), False)
sketch9.addGeometry(Part.LineSegment(V(23.2, 32.9, 0), V(26.8, 32.9, 0)), False)
sketch9.addGeometry(Part.LineSegment(V(26.8, 32.9, 0), V(28.6, 36, 0)), False)
sketch9.addConstraint(Sketcher.Constraint("Coincident", 0, 2, 1, 1))
sketch9.addConstraint(Sketcher.Constraint("Coincident", 1, 2, 2, 1))
sketch9.addConstraint(Sketcher.Constraint("Coincident", 2, 2, 3, 1))
sketch9.addConstraint(Sketcher.Constraint("Coincident", 3, 2, 4, 1))
sketch9.addConstraint(Sketcher.Constraint("Coincident", 4, 2, 5, 1))
sketch9.addConstraint(Sketcher.Constraint("Coincident", 5, 2, 0, 1))
sketch9.addConstraint(Sketcher.Constraint("Coincident", 6, 2, 7, 1))
sketch9.addConstraint(Sketcher.Constraint("Coincident", 7, 2, 8, 1))
sketch9.addConstraint(Sketcher.Constraint("Coincident", 8, 2, 9, 1))
sketch9.addConstraint(Sketcher.Constraint("Coincident", 9, 2, 10, 1))
sketch9.addConstraint(Sketcher.Constraint("Coincident", 10, 2, 11, 1))
sketch9.addConstraint(Sketcher.Constraint("Coincident", 11, 2, 6, 1))
sketch9.addConstraint(Sketcher.Constraint("Horizontal", 1))
sketch9.addConstraint(Sketcher.Constraint("Horizontal", 4))
sketch9.addConstraint(Sketcher.Constraint("Horizontal", 7))
sketch9.addConstraint(Sketcher.Constraint("Horizontal", 10))
sketch9.addConstraint(Sketcher.Constraint("Parallel", 0, 3))
sketch9.addConstraint(Sketcher.Constraint("Parallel", 2, 5))
sketch9.addConstraint(Sketcher.Constraint("Parallel", 3, 6))
sketch9.addConstraint(Sketcher.Constraint("Parallel", 5, 8))
sketch9.addConstraint(Sketcher.Constraint("Parallel", 6, 9))
sketch9.addConstraint(Sketcher.Constraint("Parallel", 8, 11))
sketch9.addConstraint(Sketcher.Constraint("Horizontal", 2, 2, 5, 2))
sketch9.addConstraint(Sketcher.Constraint("Horizontal", 8, 2, 11, 2))
sketch9.addConstraint(Sketcher.Constraint("Vertical", 1, 2, 3, 2))
sketch9.addConstraint(Sketcher.Constraint("Vertical", 0, 2, 4, 2))
sketch9.addConstraint(Sketcher.Constraint("Vertical", 4, 2, 6, 2))
sketch9.addConstraint(Sketcher.Constraint("Vertical", 3, 2, 7, 2))
sketch9.addConstraint(Sketcher.Constraint("Vertical", 2, 2, 8, 2))
sketch9.addConstraint(Sketcher.Constraint("Vertical", 7, 2, 9, 2))
sketch9.addConstraint(Sketcher.Constraint("Angle", 0, Q("120 deg")))
sketch9.addConstraint(Sketcher.Constraint("DistanceY", -1, 1, 2, 2, 12.0))
sketch9.addConstraint(Sketcher.Constraint("DistanceY", -1, 1, 8, 2, 36.0))
sketch9.addConstraint(Sketcher.Constraint("DistanceY", 3, 2, 1, 2, 6.25))
sketch9.addConstraint(Sketcher.Constraint("DistanceX", 1, 2, 1, 1, 3.608439))
sketch9.addConstraint(Sketcher.Constraint("DistanceX", -1, 1, 0, 2, 26.80422))
pocket6 = body.newObject("PartDesign::Pocket", "Pocket005")
pocket6.Profile = sketch9
pocket6.Length = 10

sketch10 = body.newObject("Sketcher::SketchObject", "Sketch009")
sketch10.AttachmentSupport = (doc.getObject("XZ_Plane"), [""])
sketch10.MapMode = "FlatFace"
sketch10.addGeometry(Part.LineSegment(V(30, 41, 0), V(30, 42, 0)), False)
sketch10.addGeometry(Part.ArcOfCircle(Part.Circle(V(29, 42, 0), V(0, 0, 1), 1), math.radians(0), math.radians(90)), False)
sketch10.addGeometry(Part.LineSegment(V(29, 43, 0), V(21, 43, 0)), False)
sketch10.addGeometry(Part.ArcOfCircle(Part.Circle(V(21, 42, 0), V(0, 0, 1), 1), math.radians(90), math.radians(180)), False)
sketch10.addGeometry(Part.LineSegment(V(20, 42, 0), V(20, 41, 0)), False)
sketch10.addGeometry(Part.ArcOfCircle(Part.Circle(V(19, 41, 0), V(0, 0, 1), 1), math.radians(-90), math.radians(0)), False)
sketch10.addGeometry(Part.LineSegment(V(19, 40, 0), V(31, 40, 0)), False)
sketch10.addGeometry(Part.ArcOfCircle(Part.Circle(V(31, 41, 0), V(0, 0, 1), 1), math.radians(-180), math.radians(-90)), False)
sketch10.addConstraint(Sketcher.Constraint("Tangent", 0, 2, 1, 1))
sketch10.addConstraint(Sketcher.Constraint("Tangent", 1, 2, 2, 1))
sketch10.addConstraint(Sketcher.Constraint("Tangent", 2, 2, 3, 1))
sketch10.addConstraint(Sketcher.Constraint("Tangent", 3, 2, 4, 1))
sketch10.addConstraint(Sketcher.Constraint("Tangent", 4, 2, 5, 2))
sketch10.addConstraint(Sketcher.Constraint("Tangent", 5, 1, 6, 1))
sketch10.addConstraint(Sketcher.Constraint("Tangent", 6, 2, 7, 2))
sketch10.addConstraint(Sketcher.Constraint("Tangent", 7, 1, 0, 1))
sketch10.addConstraint(Sketcher.Constraint("Vertical", 0))
sketch10.addConstraint(Sketcher.Constraint("Horizontal", 2))
sketch10.addConstraint(Sketcher.Constraint("Vertical", 4))
sketch10.addConstraint(Sketcher.Constraint("Horizontal", 6))
sketch10.addConstraint(Sketcher.Constraint("Equal", 1, 3))
sketch10.addConstraint(Sketcher.Constraint("Equal", 3, 5))
sketch10.addConstraint(Sketcher.Constraint("Equal", 5, 7))
sketch10.addConstraint(Sketcher.Constraint("Radius", 1, 1.0))
sketch10.addConstraint(Sketcher.Constraint("DistanceX", 2, 2, 2, 1, 8.0))
sketch10.addConstraint(Sketcher.Constraint("DistanceY", 0, 1, 0, 2, 1.0))
sketch10.addConstraint(Sketcher.Constraint("DistanceX", -1, 1, 1, 3, 29.0))
sketch10.addConstraint(Sketcher.Constraint("DistanceY", -1, 1, 1, 3, 42.0))
pad4 = body.newObject("PartDesign::Pad", "Pad003")
pad4.Profile = sketch10
pad4.Length = 15
pad4.Reversed = True

sketch11 = body.newObject("Sketcher::SketchObject", "Sketch010")
sketch11.AttachmentSupport = (doc.getObject("YZ_Plane"), [""])
sketch11.MapMode = "FlatFace"
sketch11.AttachmentOffset = App.Placement(V(0, 0, 55), App.Rotation())
sketch11.addGeometry(Part.Circle(V(7.5, 25, 0), V(0, 0, 1), 2.2), False)
sketch11.addGeometry(Part.Circle(V(7.5, -5, 0), V(0, 0, 1), 2.2), False)
sketch11.addConstraint(Sketcher.Constraint("Equal", 0, 1))
sketch11.addConstraint(Sketcher.Constraint("Vertical", 0, 3, 1, 3))
sketch11.addConstraint(Sketcher.Constraint("Diameter", 0, 4.5))
sketch11.addConstraint(Sketcher.Constraint("DistanceY", -1, 1, 0, 3, 25.0))
sketch11.addConstraint(Sketcher.Constraint("DistanceY", 1, 3, -1, 1, 5.0))
sketch11.addConstraint(Sketcher.Constraint("DistanceX", -1, 1, 0, 3, 7.5))
pocket7 = body.newObject("PartDesign::Pocket", "Pocket006")
pocket7.Profile = sketch11
pocket7.Length = 10

sketch12 = body.newObject("Sketcher::SketchObject", "Sketch011")
sketch12.AttachmentSupport = (doc.getObject("YZ_Plane"), [""])
sketch12.MapMode = "FlatFace"
sketch12.AttachmentOffset = App.Placement(V(0, 0, -45), App.Rotation())
sketch12.addGeometry(Part.Circle(V(7.5, -5, 0), V(0, 0, 1), 2.2), False)
sketch12.addGeometry(Part.Circle(V(7.5, 25, 0), V(0, 0, 1), 2.2), False)
sketch12.addConstraint(Sketcher.Constraint("Equal", 0, 1))
sketch12.addConstraint(Sketcher.Constraint("Vertical", 0, 3, 1, 3))
sketch12.addConstraint(Sketcher.Constraint("Diameter", 0, 4.5))
sketch12.addConstraint(Sketcher.Constraint("DistanceY", 0, 3, -1, 1, 5.0))
sketch12.addConstraint(Sketcher.Constraint("DistanceY", -1, 1, 1, 3, 25.0))
sketch12.addConstraint(Sketcher.Constraint("DistanceX", -1, 1, 0, 3, 7.5))
pocket8 = body.newObject("PartDesign::Pocket", "Pocket007")
pocket8.Profile = sketch12
pocket8.Length = 10

doc.recompute()
